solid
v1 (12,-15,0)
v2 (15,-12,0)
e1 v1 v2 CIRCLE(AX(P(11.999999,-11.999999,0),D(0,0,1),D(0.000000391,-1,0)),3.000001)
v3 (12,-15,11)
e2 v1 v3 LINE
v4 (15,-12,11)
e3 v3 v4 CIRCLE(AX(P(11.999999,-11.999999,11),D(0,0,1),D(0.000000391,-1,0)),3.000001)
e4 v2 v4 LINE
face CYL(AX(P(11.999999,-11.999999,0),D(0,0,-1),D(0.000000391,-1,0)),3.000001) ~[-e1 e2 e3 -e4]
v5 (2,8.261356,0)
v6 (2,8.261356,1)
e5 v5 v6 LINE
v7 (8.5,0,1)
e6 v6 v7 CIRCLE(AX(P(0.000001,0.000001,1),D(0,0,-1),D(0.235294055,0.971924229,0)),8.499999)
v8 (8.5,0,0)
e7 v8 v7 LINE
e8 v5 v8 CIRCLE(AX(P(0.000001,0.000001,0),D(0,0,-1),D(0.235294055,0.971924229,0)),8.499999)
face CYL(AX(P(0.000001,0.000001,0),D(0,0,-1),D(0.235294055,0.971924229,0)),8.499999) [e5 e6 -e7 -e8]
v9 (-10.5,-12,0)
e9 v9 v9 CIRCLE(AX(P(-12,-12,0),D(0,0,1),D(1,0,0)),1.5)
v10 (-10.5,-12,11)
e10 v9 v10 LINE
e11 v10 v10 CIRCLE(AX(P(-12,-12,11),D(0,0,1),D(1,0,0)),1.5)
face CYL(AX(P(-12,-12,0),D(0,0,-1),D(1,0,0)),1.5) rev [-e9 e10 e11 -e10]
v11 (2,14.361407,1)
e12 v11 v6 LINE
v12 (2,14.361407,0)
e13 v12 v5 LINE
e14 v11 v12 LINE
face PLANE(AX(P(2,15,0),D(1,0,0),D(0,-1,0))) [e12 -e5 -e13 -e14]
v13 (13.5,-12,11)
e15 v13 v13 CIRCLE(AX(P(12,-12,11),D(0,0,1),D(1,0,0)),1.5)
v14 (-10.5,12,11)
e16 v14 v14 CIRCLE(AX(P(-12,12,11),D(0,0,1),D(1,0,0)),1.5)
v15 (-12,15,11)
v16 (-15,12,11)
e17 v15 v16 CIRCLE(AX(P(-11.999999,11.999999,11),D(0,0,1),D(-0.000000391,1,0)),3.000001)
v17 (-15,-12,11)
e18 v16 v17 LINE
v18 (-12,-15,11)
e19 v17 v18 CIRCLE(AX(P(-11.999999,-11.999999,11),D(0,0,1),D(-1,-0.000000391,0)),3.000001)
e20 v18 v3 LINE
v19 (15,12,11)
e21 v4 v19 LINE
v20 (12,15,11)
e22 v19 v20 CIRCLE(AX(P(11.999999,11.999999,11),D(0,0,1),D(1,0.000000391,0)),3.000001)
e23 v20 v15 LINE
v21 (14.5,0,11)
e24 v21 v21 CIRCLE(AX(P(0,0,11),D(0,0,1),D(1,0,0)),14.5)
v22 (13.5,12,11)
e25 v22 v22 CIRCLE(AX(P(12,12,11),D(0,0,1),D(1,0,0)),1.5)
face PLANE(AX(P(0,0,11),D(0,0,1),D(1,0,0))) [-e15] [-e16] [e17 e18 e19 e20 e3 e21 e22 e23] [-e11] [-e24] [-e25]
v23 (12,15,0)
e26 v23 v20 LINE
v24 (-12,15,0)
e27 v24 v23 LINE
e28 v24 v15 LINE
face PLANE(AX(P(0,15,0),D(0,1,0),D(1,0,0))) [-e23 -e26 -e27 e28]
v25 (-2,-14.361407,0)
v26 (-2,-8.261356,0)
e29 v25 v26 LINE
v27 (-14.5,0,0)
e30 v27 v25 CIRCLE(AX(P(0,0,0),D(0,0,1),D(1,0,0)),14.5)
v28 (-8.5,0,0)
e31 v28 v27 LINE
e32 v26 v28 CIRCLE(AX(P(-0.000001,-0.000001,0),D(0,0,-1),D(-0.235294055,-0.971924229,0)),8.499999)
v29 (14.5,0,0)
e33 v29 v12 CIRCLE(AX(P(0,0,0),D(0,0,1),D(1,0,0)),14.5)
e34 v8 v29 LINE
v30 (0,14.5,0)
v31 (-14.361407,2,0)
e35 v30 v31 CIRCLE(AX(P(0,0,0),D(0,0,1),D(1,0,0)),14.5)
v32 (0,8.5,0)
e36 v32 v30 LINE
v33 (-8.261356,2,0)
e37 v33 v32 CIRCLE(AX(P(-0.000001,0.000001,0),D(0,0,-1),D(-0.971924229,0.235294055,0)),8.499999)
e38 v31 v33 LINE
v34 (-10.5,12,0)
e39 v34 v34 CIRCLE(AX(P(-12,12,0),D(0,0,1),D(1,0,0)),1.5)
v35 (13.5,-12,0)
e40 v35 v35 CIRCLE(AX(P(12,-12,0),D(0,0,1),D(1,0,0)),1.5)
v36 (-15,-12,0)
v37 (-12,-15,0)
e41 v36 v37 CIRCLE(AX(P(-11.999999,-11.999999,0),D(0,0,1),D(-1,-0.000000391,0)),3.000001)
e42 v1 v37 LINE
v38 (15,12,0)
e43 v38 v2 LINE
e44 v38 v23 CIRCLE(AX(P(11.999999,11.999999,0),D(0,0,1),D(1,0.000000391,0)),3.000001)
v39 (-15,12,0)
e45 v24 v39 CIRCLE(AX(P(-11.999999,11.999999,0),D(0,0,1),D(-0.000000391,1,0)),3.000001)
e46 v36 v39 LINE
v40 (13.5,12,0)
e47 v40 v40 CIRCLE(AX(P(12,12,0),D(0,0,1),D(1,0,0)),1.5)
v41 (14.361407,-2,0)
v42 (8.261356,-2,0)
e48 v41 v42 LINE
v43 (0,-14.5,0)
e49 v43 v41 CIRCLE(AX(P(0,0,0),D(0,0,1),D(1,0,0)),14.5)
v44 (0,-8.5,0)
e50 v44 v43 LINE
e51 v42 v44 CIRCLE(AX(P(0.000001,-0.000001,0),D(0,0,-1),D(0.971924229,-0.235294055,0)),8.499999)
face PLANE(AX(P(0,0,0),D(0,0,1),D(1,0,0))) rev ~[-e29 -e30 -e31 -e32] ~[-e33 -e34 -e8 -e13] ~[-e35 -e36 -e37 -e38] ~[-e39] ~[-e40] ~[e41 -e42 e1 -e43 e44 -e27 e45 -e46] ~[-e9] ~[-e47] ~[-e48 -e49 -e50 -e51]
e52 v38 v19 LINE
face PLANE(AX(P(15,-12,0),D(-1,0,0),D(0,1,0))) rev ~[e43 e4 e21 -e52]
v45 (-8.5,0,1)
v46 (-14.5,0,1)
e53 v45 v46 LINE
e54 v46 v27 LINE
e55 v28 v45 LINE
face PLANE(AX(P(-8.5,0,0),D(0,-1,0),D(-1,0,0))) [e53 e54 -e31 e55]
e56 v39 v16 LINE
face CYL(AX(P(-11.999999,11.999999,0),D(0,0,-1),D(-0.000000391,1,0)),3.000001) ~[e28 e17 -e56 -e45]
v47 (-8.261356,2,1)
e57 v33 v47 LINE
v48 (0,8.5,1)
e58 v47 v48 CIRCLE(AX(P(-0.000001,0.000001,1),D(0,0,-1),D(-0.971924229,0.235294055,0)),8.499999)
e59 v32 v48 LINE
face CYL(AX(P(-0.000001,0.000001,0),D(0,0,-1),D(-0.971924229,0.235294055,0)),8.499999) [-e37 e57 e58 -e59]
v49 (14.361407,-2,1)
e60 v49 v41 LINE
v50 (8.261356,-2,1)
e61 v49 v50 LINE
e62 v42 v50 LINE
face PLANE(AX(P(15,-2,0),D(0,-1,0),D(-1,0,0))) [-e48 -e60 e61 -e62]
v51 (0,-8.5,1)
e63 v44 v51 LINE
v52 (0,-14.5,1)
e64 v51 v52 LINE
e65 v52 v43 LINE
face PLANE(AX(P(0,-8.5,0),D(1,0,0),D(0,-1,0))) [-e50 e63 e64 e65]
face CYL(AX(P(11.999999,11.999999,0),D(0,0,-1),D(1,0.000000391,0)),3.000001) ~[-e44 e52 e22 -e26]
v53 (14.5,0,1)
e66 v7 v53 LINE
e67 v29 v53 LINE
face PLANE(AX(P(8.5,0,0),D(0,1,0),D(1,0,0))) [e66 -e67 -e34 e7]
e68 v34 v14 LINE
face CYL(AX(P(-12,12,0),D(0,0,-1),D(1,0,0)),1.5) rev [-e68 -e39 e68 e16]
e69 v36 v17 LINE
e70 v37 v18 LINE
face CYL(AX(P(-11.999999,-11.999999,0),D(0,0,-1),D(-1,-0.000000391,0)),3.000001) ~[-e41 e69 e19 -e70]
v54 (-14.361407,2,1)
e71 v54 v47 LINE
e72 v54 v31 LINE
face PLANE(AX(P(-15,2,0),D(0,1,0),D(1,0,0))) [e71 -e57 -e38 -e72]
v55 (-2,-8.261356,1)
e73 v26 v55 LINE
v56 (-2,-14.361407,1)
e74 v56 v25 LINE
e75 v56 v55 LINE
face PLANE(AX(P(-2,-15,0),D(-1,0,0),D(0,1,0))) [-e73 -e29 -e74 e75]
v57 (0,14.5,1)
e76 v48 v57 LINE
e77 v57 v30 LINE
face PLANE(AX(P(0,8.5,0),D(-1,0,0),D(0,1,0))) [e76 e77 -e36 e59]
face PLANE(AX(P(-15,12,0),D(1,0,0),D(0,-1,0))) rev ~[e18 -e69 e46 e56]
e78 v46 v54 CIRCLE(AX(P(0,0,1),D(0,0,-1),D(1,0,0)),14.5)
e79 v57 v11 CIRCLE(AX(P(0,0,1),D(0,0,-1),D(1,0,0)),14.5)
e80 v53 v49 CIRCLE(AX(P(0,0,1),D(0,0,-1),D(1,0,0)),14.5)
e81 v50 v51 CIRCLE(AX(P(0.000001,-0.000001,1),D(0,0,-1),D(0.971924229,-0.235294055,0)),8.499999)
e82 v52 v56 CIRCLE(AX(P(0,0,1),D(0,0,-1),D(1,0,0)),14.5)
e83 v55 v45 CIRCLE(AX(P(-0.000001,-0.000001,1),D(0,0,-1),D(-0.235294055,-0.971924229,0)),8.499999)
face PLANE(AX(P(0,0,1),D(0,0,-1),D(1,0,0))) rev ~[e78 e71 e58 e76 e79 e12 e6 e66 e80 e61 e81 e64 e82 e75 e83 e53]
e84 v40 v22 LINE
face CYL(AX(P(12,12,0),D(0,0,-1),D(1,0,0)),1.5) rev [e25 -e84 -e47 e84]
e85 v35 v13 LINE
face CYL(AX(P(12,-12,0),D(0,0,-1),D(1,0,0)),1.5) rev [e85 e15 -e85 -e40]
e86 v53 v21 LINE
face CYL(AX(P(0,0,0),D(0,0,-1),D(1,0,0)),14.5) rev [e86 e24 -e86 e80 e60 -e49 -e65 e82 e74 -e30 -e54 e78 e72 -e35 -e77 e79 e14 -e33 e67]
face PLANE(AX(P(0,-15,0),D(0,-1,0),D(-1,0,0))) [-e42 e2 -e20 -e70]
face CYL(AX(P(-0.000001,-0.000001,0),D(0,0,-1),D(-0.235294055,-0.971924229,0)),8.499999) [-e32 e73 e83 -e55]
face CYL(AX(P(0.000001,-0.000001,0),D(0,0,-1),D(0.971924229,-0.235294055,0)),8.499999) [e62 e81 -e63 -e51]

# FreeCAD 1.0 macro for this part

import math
import FreeCAD as App
import Part
import Sketcher

V = App.Vector

doc = App.newDocument("Part")
params = doc.addObject("Spreadsheet::Sheet", "Params")
for row, (alias, value) in enumerate([
    ("sketch1_diameter", "3 mm"),
    ("sketch1_diameter2", "29 mm"),
    ("sketch1_radius", "3.000001 mm"),
    ("sketch1_width", "24 mm"),
    ("pad1_length", "11 mm"),
    ("sketch2_radius", "8.499999 mm"),
    ("sketch2_width", "2 mm"),
    ("sketch2_width2", "6.5 mm"),
    ("pad2_length", "1 mm"),
], start=1):
    params.set(f"A{row}", alias)
    params.set(f"B{row}", "=" + value)
    params.setAlias(f"B{row}", alias)

body = doc.addObject("PartDesign::Body", "Body")

# Sketch on XY plane
sketch1 = doc.addObject("Sketcher::SketchObject", "Sketch")
body.addObject(sketch1)
sketch1.AttachmentSupport = (doc.XY_Plane, [""])
sketch1.MapMode = "FlatFace"
sketch1.addGeometry([
    Part.LineSegment(V(-12, -15, 0), V(12, -15, 0)),  # 0
    Part.ArcOfCircle(Part.Circle(V(12, -12, 0), V(0, 0, 1), 3), math.radians(-90), math.radians(0)),  # 1
    Part.LineSegment(V(15, -12, 0), V(15, 12, 0)),  # 2
    Part.ArcOfCircle(Part.Circle(V(12, 12, 0), V(0, 0, 1), 3), math.radians(0), math.radians(90)),  # 3
    Part.LineSegment(V(12, 15, 0), V(-12, 15, 0)),  # 4
    Part.ArcOfCircle(Part.Circle(V(-12, 12, 0), V(0, 0, 1), 3), math.radians(90), math.radians(180)),  # 5
    Part.LineSegment(V(-15, 12, 0), V(-15, -12, 0)),  # 6
    Part.ArcOfCircle(Part.Circle(V(-12, -12, 0), V(0, 0, 1), 3), math.radians(-180), math.radians(-90)),  # 7
    Part.Circle(V(-12, -12, 0), V(0, 0, 1), 1.5),  # 8
    Part.Circle(V(12, -12, 0), V(0, 0, 1), 1.5),  # 9
    Part.Circle(V(-12, 12, 0), V(0, 0, 1), 1.5),  # 10
    Part.Circle(V(0, 0, 0), V(0, 0, 1), 14.5),  # 11
    Part.Circle(V(12, 12, 0), V(0, 0, 1), 1.5),  # 12
], False)
sketch1.addConstraint([
    Sketcher.Constraint("Tangent", 0, 2, 1, 1),
    Sketcher.Constraint("Tangent", 1, 2, 2, 1),
    Sketcher.Constraint("Tangent", 2, 2, 3, 1),
    Sketcher.Constraint("Tangent", 3, 2, 4, 1),
    Sketcher.Constraint("Tangent", 4, 2, 5, 1),
    Sketcher.Constraint("Tangent", 5, 2, 6, 1),
    Sketcher.Constraint("Tangent", 6, 2, 7, 1),
    Sketcher.Constraint("Tangent", 7, 2, 0, 1),
    Sketcher.Constraint("Horizontal", 0),
    Sketcher.Constraint("Vertical", 2),
    Sketcher.Constraint("Horizontal", 4),
    Sketcher.Constraint("Vertical", 6),
    Sketcher.Constraint("Coincident", 11, 3, -1, 1),
    Sketcher.Constraint("Coincident", 8, 3, 7, 3),
    Sketcher.Constraint("Coincident", 9, 3, 1, 3),
    Sketcher.Constraint("Coincident", 10, 3, 5, 3),
    Sketcher.Constraint("Coincident", 12, 3, 3, 3),
    Sketcher.Constraint("Equal", 1, 3),
    Sketcher.Constraint("Equal", 3, 5),
    Sketcher.Constraint("Equal", 5, 7),
    Sketcher.Constraint("Equal", 8, 9),
    Sketcher.Constraint("Equal", 9, 10),
    Sketcher.Constraint("Equal", 10, 12),
    Sketcher.Constraint("Symmetric", 1, 3, 5, 3, -1, 1),
    Sketcher.Constraint("Equal", 4, 2),
    Sketcher.Constraint("Diameter", 8, 3.0),
    Sketcher.Constraint("Diameter", 11, 29.0),
    Sketcher.Constraint("Radius", 1, 3.000001),
    Sketcher.Constraint("DistanceX", 0, 1, 0, 2, 24.0),
])
sketch1.setExpression("Constraints[25]", "Params.sketch1_diameter")
sketch1.setExpression("Constraints[26]", "Params.sketch1_diameter2")
sketch1.setExpression("Constraints[27]", "Params.sketch1_radius")
sketch1.setExpression("Constraints[28]", "Params.sketch1_width")
pad1 = doc.addObject("PartDesign::Pad", "Pad")
body.addObject(pad1)
pad1.Profile = sketch1
pad1.setExpression("Length", "Params.pad1_length")

# Sketch on XY plane
sketch2 = doc.addObject("Sketcher::SketchObject", "Sketch001")
body.addObject(sketch2)
sketch2.AttachmentSupport = (doc.XY_Plane, [""])
sketch2.MapMode = "FlatFace"
sketch2.addGeometry([
    Part.LineSegment(V(2, 15, 0), V(2, 8.3, 0)),  # 0
    Part.ArcOfCircle(Part.Circle(V(0, 0, 0), V(0, 0, 1), 8.5), math.radians(0), math.radians(76)),  # 1
    Part.LineSegment(V(8.5, 0, 0), V(15, 0, 0)),  # 2
    Part.LineSegment(V(15, 0, 0), V(15, -2, 0)),  # 3
    Part.LineSegment(V(15, -2, 0), V(8.3, -2, 0)),  # 4
    Part.ArcOfCircle(Part.Circle(V(0, 0, 0), V(0, 0, 1), 8.5), math.radians(-90), math.radians(-14)),  # 5
    Part.LineSegment(V(0, -8.5, 0), V(0, -15, 0)),  # 6
    Part.LineSegment(V(0, -15, 0), V(-2, -15, 0)),  # 7
    Part.LineSegment(V(-2, -15, 0), V(-2, -8.3, 0)),  # 8
    Part.ArcOfCircle(Part.Circle(V(0, 0, 0), V(0, 0, 1), 8.5), math.radians(180), math.radians(256)),  # 9
    Part.LineSegment(V(-8.5, 0, 0), V(-15, 0, 0)),  # 10
    Part.LineSegment(V(-15, 0, 0), V(-15, 2, 0)),  # 11
    Part.LineSegment(V(-15, 2, 0), V(-8.3, 2, 0)),  # 12
    Part.ArcOfCircle(Part.Circle(V(0, 0, 0), V(0, 0, 1), 8.5), math.radians(90), math.radians(166)),  # 13
    Part.LineSegment(V(0, 8.5, 0), V(0, 15, 0)),  # 14
    Part.LineSegment(V(0, 15, 0), V(2, 15, 0)),  # 15
], False)
sketch2.addConstraint([
    Sketcher.Constraint("Coincident", 0, 2, 1, 2),
    Sketcher.Constraint("Coincident", 1, 1, 2, 1),
    Sketcher.Constraint("Coincident", 2, 2, 3, 1),
    Sketcher.Constraint("Coincident", 3, 2, 4, 1),
    Sketcher.Constraint("Coincident", 4, 2, 5, 2),
    Sketcher.Constraint("Coincident", 5, 1, 6, 1),
    Sketcher.Constraint("Coincident", 6, 2, 7, 1),
    Sketcher.Constraint("Coincident", 7, 2, 8, 1),
    Sketcher.Constraint("Coincident", 8, 2, 9, 2),
    Sketcher.Constraint("Coincident", 9, 1, 10, 1),
    Sketcher.Constraint("Coincident", 10, 2, 11, 1),
    Sketcher.Constraint("Coincident", 11, 2, 12, 1),
    Sketcher.Constraint("Coincident", 12, 2, 13, 2),
    Sketcher.Constraint("Coincident", 13, 1, 14, 1),
    Sketcher.Constraint("Coincident", 14, 2, 15, 1),
    Sketcher.Constraint("Coincident", 15, 2, 0, 1),
    Sketcher.Constraint("Vertical", 0),
    Sketcher.Constraint("Horizontal", 2),
    Sketcher.Constraint("Vertical", 3),
    Sketcher.Constraint("Horizontal", 4),
    Sketcher.Constraint("Vertical", 6),
    Sketcher.Constraint("Horizontal", 7),
    Sketcher.Constraint("Vertical", 8),
    Sketcher.Constraint("Horizontal", 10),
    Sketcher.Constraint("Vertical", 11),
    Sketcher.Constraint("Horizontal", 12),
    Sketcher.Constraint("Vertical", 14),
    Sketcher.Constraint("Horizontal", 15),
    Sketcher.Constraint("Coincident", 1, 3, -1, 1),
    Sketcher.Constraint("Coincident", 5, 3, -1, 1),
    Sketcher.Constraint("Coincident", 9, 3, -1, 1),
    Sketcher.Constraint("Coincident", 13, 3, -1, 1),
    Sketcher.Constraint("Equal", 1, 5),
    Sketcher.Constraint("Equal", 5, 9),
    Sketcher.Constraint("Equal", 9, 13),
    Sketcher.Constraint("Symmetric", 2, 2, 10, 2, -1, 1),
    Sketcher.Constraint("Symmetric", 6, 2, 14, 2, -1, 1),
    Sketcher.Constraint("PointOnObject", 1, 1, -1),
    Sketcher.Constraint("PointOnObject", 5, 1, -2),
    Sketcher.Constraint("Equal", 4, 12),
    Sketcher.Constraint("Equal", 7, 15),
    Sketcher.Constraint("Equal", 12, 0),
    Sketcher.Constraint("Equal", 15, 3),
    Sketcher.Constraint("Radius", 1, 8.499999),
    Sketcher.Constraint("DistanceX", 7, 2, 7, 1, 2.0),
    Sketcher.Constraint("DistanceX", 2, 1, 2, 2, 6.5),
])
sketch2.setExpression("Constraints[43]", "Params.sketch2_radius")
sketch2.setExpression("Constraints[44]", "Params.sketch2_width")
sketch2.setExpression("Constraints[45]", "Params.sketch2_width2")
pad2 = doc.addObject("PartDesign::Pad", "Pad001")
body.addObject(pad2)
pad2.Profile = sketch2
pad2.setExpression("Length", "Params.pad2_length")

doc.recompute()
